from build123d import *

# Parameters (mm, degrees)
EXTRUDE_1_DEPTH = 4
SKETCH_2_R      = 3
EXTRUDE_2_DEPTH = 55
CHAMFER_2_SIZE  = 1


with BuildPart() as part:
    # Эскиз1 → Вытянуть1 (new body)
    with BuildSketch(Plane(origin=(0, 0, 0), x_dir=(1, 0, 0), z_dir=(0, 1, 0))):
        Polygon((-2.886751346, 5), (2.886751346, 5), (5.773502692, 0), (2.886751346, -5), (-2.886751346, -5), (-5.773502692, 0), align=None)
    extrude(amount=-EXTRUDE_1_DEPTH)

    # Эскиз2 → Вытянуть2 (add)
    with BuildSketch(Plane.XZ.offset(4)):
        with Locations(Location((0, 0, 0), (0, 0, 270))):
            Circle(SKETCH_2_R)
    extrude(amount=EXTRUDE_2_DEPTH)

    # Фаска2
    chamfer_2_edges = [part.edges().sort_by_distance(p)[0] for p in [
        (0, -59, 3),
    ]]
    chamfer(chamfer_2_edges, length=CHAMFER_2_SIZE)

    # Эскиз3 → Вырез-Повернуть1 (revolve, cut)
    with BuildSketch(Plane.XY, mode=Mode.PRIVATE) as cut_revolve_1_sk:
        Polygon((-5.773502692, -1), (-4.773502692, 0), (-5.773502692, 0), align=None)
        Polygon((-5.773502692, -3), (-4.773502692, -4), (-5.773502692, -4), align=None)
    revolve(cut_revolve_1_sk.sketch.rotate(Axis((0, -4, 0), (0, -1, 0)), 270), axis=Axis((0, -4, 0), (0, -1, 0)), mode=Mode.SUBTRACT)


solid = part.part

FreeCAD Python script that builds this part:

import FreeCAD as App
import Part
import Sketcher
from FreeCAD import Vector
Q = App.Units.Quantity


def edges_at(feature, points):
    """Names of the edges that pass closest to the given points."""
    edges = feature.Shape.Edges
    near = lambda p: min(range(len(edges)), key=lambda i: edges[i].distToShape(Part.Vertex(*p))[0])
    return sorted({f"Edge{near(p) + 1}" for p in points})

doc = App.newDocument("Part")
body = doc.addObject("PartDesign::Body", "Body")

sketch1 = body.newObject("Sketcher::SketchObject", "Sketch")
sketch1.AttachmentSupport = (doc.getObject("XZ_Plane"), [""])
sketch1.MapMode = "FlatFace"
sketch1.addGeometry([
    Part.LineSegment(Vector(2.886751, -5, 0), Vector(-2.886751, -5, 0)),
    Part.LineSegment(Vector(-2.886751, -5, 0), Vector(-5.773503, 0, 0)),
    Part.LineSegment(Vector(-5.773503, 0, 0), Vector(-2.886751, 5, 0)),
    Part.LineSegment(Vector(-2.886751, 5, 0), Vector(2.886751, 5, 0)),
    Part.LineSegment(Vector(2.886751, 5, 0), Vector(5.773503, 0, 0)),
    Part.LineSegment(Vector(5.773503, 0, 0), Vector(2.886751, -5, 0)),
], False)
sketch1.addConstraint([
    Sketcher.Constraint("Coincident", 0, 2, 1, 1),
    Sketcher.Constraint("Coincident", 1, 2, 2, 1),
    Sketcher.Constraint("Coincident", 2, 2, 3, 1),
    Sketcher.Constraint("Coincident", 3, 2, 4, 1),
    Sketcher.Constraint("Coincident", 4, 2, 5, 1),
    Sketcher.Constraint("Coincident", 5, 2, 0, 1),
    Sketcher.Constraint("Horizontal", 0),
    Sketcher.Constraint("Horizontal", 3),
    Sketcher.Constraint("Symmetric", 0, 2, 3, 2, -1, 1),
    Sketcher.Constraint("Symmetric", 1, 2, 4, 2, -1, 1),
    Sketcher.Constraint("PointOnObject", 1, 2, -1),
    Sketcher.Constraint("Parallel", 2, 5),
    Sketcher.Constraint("Vertical", 0, 2, 2, 2),
    Sketcher.Constraint("Angle", 1, Q("120 deg")),
    Sketcher.Constraint("DistanceY", 0, 2, -1, 1, Q("5 mm")),
    Sketcher.Constraint("DistanceX", 0, 2, 0, 1, Q("5.773503 mm")),
])
pad1 = body.newObject("PartDesign::Pad", "Pad")
pad1.Profile = sketch1
pad1.Length = 4

sketch2 = body.newObject("Sketcher::SketchObject", "Sketch001")
sketch2.AttachmentSupport = (doc.getObject("XZ_Plane"), [""])
sketch2.MapMode = "FlatFace"
sketch2.AttachmentOffset = App.Placement(Vector(0, 0, 4), App.Rotation())
sketch2.addGeometry(Part.Circle(Vector(0, 0, 0), Vector(0, 0, 1), 3), False)
sketch2.addConstraint([
    Sketcher.Constraint("Coincident", 0, 3, -1, 1),
    Sketcher.Constraint("Diameter", 0, Q("6 mm")),
])
pad2 = body.newObject("PartDesign::Pad", "Pad001")
pad2.Profile = sketch2
pad2.Length = 55
doc.recompute()

chamfer = body.newObject("PartDesign::Chamfer", "Chamfer")
chamfer.Base = (pad2, edges_at(pad2, [(0, -59, 3)]))
chamfer.Size = 1

sketch3 = body.newObject("Sketcher::SketchObject", "Sketch002")
sketch3.AttachmentSupport = (doc.getObject("XY_Plane"), [""])
sketch3.MapMode = "FlatFace"
sketch3.addGeometry([
    Part.LineSegment(Vector(-5.773503, -1, 0), Vector(-4.773503, 0, 0)),
    Part.LineSegment(Vector(-4.773503, 0, 0), Vector(-5.773503, 0, 0)),
    Part.LineSegment(Vector(-5.773503, 0, 0), Vector(-5.773503, -1, 0)),
    Part.LineSegment(Vector(-4.773503, -4, 0), Vector(-5.773503, -3, 0)),
    Part.LineSegment(Vector(-5.773503, -3, 0), Vector(-5.773503, -4, 0)),
    Part.LineSegment(Vector(-5.773503, -4, 0), Vector(-4.773503, -4, 0)),
], False)
sketch3.addConstraint([
    Sketcher.Constraint("Coincident", 0, 2, 1, 1),
    Sketcher.Constraint("Coincident", 1, 2, 2, 1),
    Sketcher.Constraint("Coincident", 2, 2, 0, 1),
    Sketcher.Constraint("Coincident", 3, 2, 4, 1),
    Sketcher.Constraint("Coincident", 4, 2, 5, 1),
    Sketcher.Constraint("Coincident", 5, 2, 3, 1),
    Sketcher.Constraint("Horizontal", 1),
    Sketcher.Constraint("Vertical", 2),
    Sketcher.Constraint("Vertical", 4),
    Sketcher.Constraint("Horizontal", 5),
    Sketcher.Constraint("PointOnObject", 0, 2, -1),
    Sketcher.Constraint("Perpendicular", 0, 3),
    Sketcher.Constraint("Vertical", 2, 2, 3, 2),
    Sketcher.Constraint("Vertical", 0, 2, 5, 2),
    Sketcher.Constraint("Equal", 5, 2),
    Sketcher.Constraint("DistanceX", 1, 2, 1, 1, Q("1 mm")),
    Sketcher.Constraint("DistanceY", 3, 2, -1, 1, Q("3 mm")),
    Sketcher.Constraint("DistanceX", 0, 2, -1, 1, Q("4.773503 mm")),
])
groove = body.newObject("PartDesign::Groove", "Groove")
groove.Profile = sketch3
groove.ReferenceAxis = (sketch3, ["V_Axis"])
groove.Angle = 360

doc.recompute()
